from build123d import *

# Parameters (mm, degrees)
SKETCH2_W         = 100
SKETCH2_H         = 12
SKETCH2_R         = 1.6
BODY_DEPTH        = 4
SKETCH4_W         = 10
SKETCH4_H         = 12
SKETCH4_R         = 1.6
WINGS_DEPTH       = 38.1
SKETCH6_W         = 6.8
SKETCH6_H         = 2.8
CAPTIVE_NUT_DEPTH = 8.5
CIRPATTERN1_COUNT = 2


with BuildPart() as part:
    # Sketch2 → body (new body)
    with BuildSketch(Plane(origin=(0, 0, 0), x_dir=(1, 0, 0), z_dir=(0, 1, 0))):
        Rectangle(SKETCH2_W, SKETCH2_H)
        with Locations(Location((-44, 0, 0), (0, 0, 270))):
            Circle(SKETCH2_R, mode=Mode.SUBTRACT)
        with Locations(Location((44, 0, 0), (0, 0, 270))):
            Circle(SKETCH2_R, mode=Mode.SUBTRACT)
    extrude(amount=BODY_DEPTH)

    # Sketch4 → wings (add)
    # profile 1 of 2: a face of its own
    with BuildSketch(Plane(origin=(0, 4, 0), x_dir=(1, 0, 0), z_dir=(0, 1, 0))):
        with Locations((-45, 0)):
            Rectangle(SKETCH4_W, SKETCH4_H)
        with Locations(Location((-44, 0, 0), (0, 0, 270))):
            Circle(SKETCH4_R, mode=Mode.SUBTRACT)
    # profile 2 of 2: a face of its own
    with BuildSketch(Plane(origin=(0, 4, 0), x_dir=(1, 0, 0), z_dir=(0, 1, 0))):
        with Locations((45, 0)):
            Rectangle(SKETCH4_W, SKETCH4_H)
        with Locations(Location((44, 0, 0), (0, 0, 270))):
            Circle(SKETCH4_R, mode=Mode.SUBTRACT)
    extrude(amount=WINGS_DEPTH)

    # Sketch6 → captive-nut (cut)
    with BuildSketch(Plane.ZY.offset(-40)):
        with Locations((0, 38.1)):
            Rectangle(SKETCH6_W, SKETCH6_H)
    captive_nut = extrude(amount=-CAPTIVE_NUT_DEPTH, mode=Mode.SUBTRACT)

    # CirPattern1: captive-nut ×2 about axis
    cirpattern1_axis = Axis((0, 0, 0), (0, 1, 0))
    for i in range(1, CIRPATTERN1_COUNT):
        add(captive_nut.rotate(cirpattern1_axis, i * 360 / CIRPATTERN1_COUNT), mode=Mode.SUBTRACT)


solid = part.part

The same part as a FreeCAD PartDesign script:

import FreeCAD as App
import Part
import Sketcher
from FreeCAD import Vector
Q = App.Units.Quantity

doc = App.newDocument("Part")
params = doc.addObject("Spreadsheet::Sheet", "Params")
for row, (alias, value) in enumerate([
    ("sketch1_diameter", "3.2 mm"),
    ("sketch1_width", "100 mm"),
    ("sketch1_height", "12 mm"),
    ("pad1_length", "4 mm"),
    ("sketch2_diameter", "3.2 mm"),
    ("sketch2_width", "10 mm"),
    ("sketch2_height", "12 mm"),
    ("pad2_length", "38.1 mm"),
    ("sketch3_width", "2.8 mm"),
    ("sketch3_height", "6.8 mm"),
    ("pocket1_length", "8.5 mm"),
], start=1):
    params.set(f"A{row}", alias)
    params.set(f"B{row}", "=" + value)
    params.setAlias(f"B{row}", alias)

body = doc.addObject("PartDesign::Body", "Body")

# Sketch on XZ plane
sketch1 = doc.addObject("Sketcher::SketchObject", "Sketch")
body.addObject(sketch1)
sketch1.AttachmentSupport = (doc.XZ_Plane, [""])
sketch1.MapMode = "FlatFace"
sketch1.addGeometry([
    Part.LineSegment(Vector(-50, -6, 0), Vector(-50, 6, 0)),  # 0
    Part.LineSegment(Vector(-50, 6, 0), Vector(50, 6, 0)),  # 1
    Part.LineSegment(Vector(50, 6, 0), Vector(50, -6, 0)),  # 2
    Part.LineSegment(Vector(50, -6, 0), Vector(-50, -6, 0)),  # 3
    Part.Circle(Vector(-44, 0, 0), Vector(0, 0, 1), 1.6),  # 4
    Part.Circle(Vector(44, 0, 0), Vector(0, 0, 1), 1.6),  # 5
], False)
sketch1.addConstraint([
    Sketcher.Constraint("Coincident", 0, 2, 1, 1),
    Sketcher.Constraint("Coincident", 1, 2, 2, 1),
    Sketcher.Constraint("Coincident", 2, 2, 3, 1),
    Sketcher.Constraint("Coincident", 3, 2, 0, 1),
    Sketcher.Constraint("Vertical", 0),
    Sketcher.Constraint("Horizontal", 1),
    Sketcher.Constraint("Vertical", 2),
    Sketcher.Constraint("Horizontal", 3),
    Sketcher.Constraint("Equal", 4, 5),
    Sketcher.Constraint("Symmetric", 4, 3, 5, 3, -1, 1),
    Sketcher.Constraint("Symmetric", 0, 2, 2, 2, -1, 1),
    Sketcher.Constraint("PointOnObject", 4, 3, -1),
    Sketcher.Constraint("Diameter", 4, Q("3.2 mm")),
    Sketcher.Constraint("DistanceX", 1, 1, 1, 2, Q("100 mm")),
    Sketcher.Constraint("DistanceY", 0, 1, 0, 2, Q("12 mm")),
    Sketcher.Constraint("DistanceX", 4, 3, -1, 1, Q("44 mm")),
])
sketch1.setExpression("Constraints[12]", "Params.sketch1_diameter")
sketch1.setExpression("Constraints[13]", "Params.sketch1_width")
sketch1.setExpression("Constraints[14]", "Params.sketch1_height")
pad1 = doc.addObject("PartDesign::Pad", "Pad")
body.addObject(pad1)
pad1.Profile = sketch1
pad1.setExpression("Length", "Params.pad1_length")
pad1.Reversed = True

# Sketch on XZ plane
sketch2 = doc.addObject("Sketcher::SketchObject", "Sketch001")
body.addObject(sketch2)
sketch2.AttachmentSupport = (doc.XZ_Plane, [""])
sketch2.MapMode = "FlatFace"
sketch2.AttachmentOffset = App.Placement(Vector(0, 0, -4), App.Rotation())
sketch2.addGeometry([
    Part.LineSegment(Vector(-50, -6, 0), Vector(-50, 6, 0)),  # 0
    Part.LineSegment(Vector(-50, 6, 0), Vector(-40, 6, 0)),  # 1
    Part.LineSegment(Vector(-40, 6, 0), Vector(-40, -6, 0)),  # 2
    Part.LineSegment(Vector(-40, -6, 0), Vector(-50, -6, 0)),  # 3
    Part.Circle(Vector(-44, 0, 0), Vector(0, 0, 1), 1.6),  # 4
    Part.LineSegment(Vector(40, -6, 0), Vector(40, 6, 0)),  # 5
    Part.LineSegment(Vector(40, 6, 0), Vector(50, 6, 0)),  # 6
    Part.LineSegment(Vector(50, 6, 0), Vector(50, -6, 0)),  # 7
    Part.LineSegment(Vector(50, -6, 0), Vector(40, -6, 0)),  # 8
    Part.Circle(Vector(44, 0, 0), Vector(0, 0, 1), 1.6),  # 9
], False)
sketch2.addConstraint([
    Sketcher.Constraint("Coincident", 0, 2, 1, 1),
    Sketcher.Constraint("Coincident", 1, 2, 2, 1),
    Sketcher.Constraint("Coincident", 2, 2, 3, 1),
    Sketcher.Constraint("Coincident", 3, 2, 0, 1),
    Sketcher.Constraint("Coincident", 5, 2, 6, 1),
    Sketcher.Constraint("Coincident", 6, 2, 7, 1),
    Sketcher.Constraint("Coincident", 7, 2, 8, 1),
    Sketcher.Constraint("Coincident", 8, 2, 5, 1),
    Sketcher.Constraint("Vertical", 0),
    Sketcher.Constraint("Horizontal", 1),
    Sketcher.Constraint("Vertical", 2),
    Sketcher.Constraint("Horizontal", 3),
    Sketcher.Constraint("Vertical", 5),
    Sketcher.Constraint("Horizontal", 6),
    Sketcher.Constraint("Vertical", 7),
    Sketcher.Constraint("Horizontal", 8),
    Sketcher.Constraint("Equal", 4, 9),
    Sketcher.Constraint("Symmetric", 4, 3, 9, 3, -1, 1),
    Sketcher.Constraint("Symmetric", 2, 2, 5, 2, -1, 1),
    Sketcher.Constraint("Symmetric", 0, 2, 7, 2, -1, 1),
    Sketcher.Constraint("PointOnObject", 4, 3, -1),
    Sketcher.Constraint("Horizontal", 1, 2, 5, 2),
    Sketcher.Constraint("Diameter", 4, Q("3.2 mm")),
    Sketcher.Constraint("DistanceX", 1, 1, 1, 2, Q("10 mm")),
    Sketcher.Constraint("DistanceY", 0, 1, 0, 2, Q("12 mm")),
    Sketcher.Constraint("DistanceX", 4, 3, -1, 1, Q("44 mm")),
    Sketcher.Constraint("DistanceX", 0, 2, -1, 1, Q("50 mm")),
])
sketch2.setExpression("Constraints[22]", "Params.sketch2_diameter")
sketch2.setExpression("Constraints[23]", "Params.sketch2_width")
sketch2.setExpression("Constraints[24]", "Params.sketch2_height")
pad2 = doc.addObject("PartDesign::Pad", "Pad001")
body.addObject(pad2)
pad2.Profile = sketch2
pad2.setExpression("Length", "Params.pad2_length")
pad2.Reversed = True

# Sketch on YZ plane
sketch3 = doc.addObject("Sketcher::SketchObject", "Sketch002")
body.addObject(sketch3)
sketch3.AttachmentSupport = (doc.YZ_Plane, [""])
sketch3.MapMode = "FlatFace"
sketch3.AttachmentOffset = App.Placement(Vector(0, 0, 40), App.Rotation())
sketch3.addGeometry([
    Part.LineSegment(Vector(39.5, -3.4, 0), Vector(36.7, -3.4, 0)),
    Part.LineSegment(Vector(36.7, -3.4, 0), Vector(36.7, 3.4, 0)),
    Part.LineSegment(Vector(36.7, 3.4, 0), Vector(39.5, 3.4, 0)),
    Part.LineSegment(Vector(39.5, 3.4, 0), Vector(39.5, -3.4, 0)),
], False)
sketch3.addConstraint([
    Sketcher.Constraint("Coincident", 0, 2, 1, 1),
    Sketcher.Constraint("Coincident", 1, 2, 2, 1),
    Sketcher.Constraint("Coincident", 2, 2, 3, 1),
    Sketcher.Constraint("Coincident", 3, 2, 0, 1),
    Sketcher.Constraint("Horizontal", 0),
    Sketcher.Constraint("Vertical", 1),
    Sketcher.Constraint("Horizontal", 2),
    Sketcher.Constraint("Vertical", 3),
    Sketcher.Constraint("DistanceX", 0, 2, 0, 1, Q("2.8 mm")),
    Sketcher.Constraint("DistanceY", 1, 1, 1, 2, Q("6.8 mm")),
    Sketcher.Constraint("DistanceX", -1, 1, 0, 2, Q("36.7 mm")),
    Sketcher.Constraint("DistanceY", 0, 2, -1, 1, Q("3.4 mm")),
])
sketch3.setExpression("Constraints[8]", "Params.sketch3_width")
sketch3.setExpression("Constraints[9]", "Params.sketch3_height")
pocket1 = doc.addObject("PartDesign::Pocket", "Pocket")
body.addObject(pocket1)
pocket1.Profile = sketch3
pocket1.setExpression("Length", "Params.pocket1_length")
pocket1.Reversed = True
doc.recompute()

polarpattern = doc.addObject("PartDesign::PolarPattern", "PolarPattern")
body.addObject(polarpattern)
polarpattern.Originals = [pocket1]
polarpattern.Axis = (doc.Y_Axis, [""])
polarpattern.Angle = 360
polarpattern.Occurrences = 2
body.Tip = polarpattern

doc.recompute()
